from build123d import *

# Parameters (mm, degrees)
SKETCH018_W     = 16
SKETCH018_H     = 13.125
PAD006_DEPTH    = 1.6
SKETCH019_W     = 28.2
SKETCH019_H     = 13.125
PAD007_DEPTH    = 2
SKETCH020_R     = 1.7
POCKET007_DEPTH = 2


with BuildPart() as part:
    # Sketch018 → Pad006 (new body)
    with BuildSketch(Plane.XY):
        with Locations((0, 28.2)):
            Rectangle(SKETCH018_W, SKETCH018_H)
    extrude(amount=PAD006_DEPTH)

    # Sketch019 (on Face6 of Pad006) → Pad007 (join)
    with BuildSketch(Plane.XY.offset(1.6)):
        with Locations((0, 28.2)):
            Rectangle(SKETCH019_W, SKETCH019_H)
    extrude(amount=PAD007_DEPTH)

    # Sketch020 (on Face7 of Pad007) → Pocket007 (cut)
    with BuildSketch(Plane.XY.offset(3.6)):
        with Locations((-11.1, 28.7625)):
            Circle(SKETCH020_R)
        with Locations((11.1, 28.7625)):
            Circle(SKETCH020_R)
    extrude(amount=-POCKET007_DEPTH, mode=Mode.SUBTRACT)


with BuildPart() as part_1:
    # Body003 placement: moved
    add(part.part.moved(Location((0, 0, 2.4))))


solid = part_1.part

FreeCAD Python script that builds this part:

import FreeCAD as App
import Part
import Sketcher

V = App.Vector
Q = App.Units.Quantity

doc = App.newDocument("Part")
body = doc.addObject("PartDesign::Body", "Body")

# Sketch on XY plane
sketch1 = doc.addObject("Sketcher::SketchObject", "Sketch")
body.addObject(sketch1)
sketch1.AttachmentSupport = (doc.XY_Plane, [""])
sketch1.MapMode = "FlatFace"
sketch1.addGeometry([
    Part.LineSegment(V(-8, 35, 0), V(-8, 22, 0)),
    Part.LineSegment(V(-8, 22, 0), V(8, 22, 0)),
    Part.LineSegment(V(8, 22, 0), V(8, 35, 0)),
    Part.LineSegment(V(8, 35, 0), V(-8, 35, 0)),
], False)
sketch1.addConstraint([
    Sketcher.Constraint("Coincident", 0, 2, 1, 1),
    Sketcher.Constraint("Coincident", 1, 2, 2, 1),
    Sketcher.Constraint("Coincident", 2, 2, 3, 1),
    Sketcher.Constraint("Coincident", 3, 2, 0, 1),
    Sketcher.Constraint("Vertical", 0),
    Sketcher.Constraint("Horizontal", 1),
    Sketcher.Constraint("Vertical", 2),
    Sketcher.Constraint("Horizontal", 3),
    Sketcher.Constraint("DistanceX", 1, 1, 1, 2, Q("16 mm")),
    Sketcher.Constraint("DistanceX", 0, 2, -1, 1, Q("8 mm")),
    Sketcher.Constraint("DistanceY", 0, 2, 0, 1, Q("13.125 mm")),
    Sketcher.Constraint("DistanceY", -1, 1, 0, 2, Q("21.6375 mm")),
])
pad1 = doc.addObject("PartDesign::Pad", "Pad")
body.addObject(pad1)
pad1.Profile = sketch1
pad1.Length = 1.6

# Sketch on XY plane
sketch2 = doc.addObject("Sketcher::SketchObject", "Sketch001")
body.addObject(sketch2)
sketch2.AttachmentSupport = (doc.XY_Plane, [""])
sketch2.MapMode = "FlatFace"
sketch2.AttachmentOffset = App.Placement(V(0, 0, 1.6), App.Rotation())
sketch2.addGeometry([
    Part.LineSegment(V(-14, 35, 0), V(-14, 22, 0)),
    Part.LineSegment(V(-14, 22, 0), V(14, 22, 0)),
    Part.LineSegment(V(14, 22, 0), V(14, 35, 0)),
    Part.LineSegment(V(14, 35, 0), V(-14, 35, 0)),
], False)
sketch2.addConstraint([
    Sketcher.Constraint("Coincident", 0, 2, 1, 1),
    Sketcher.Constraint("Coincident", 1, 2, 2, 1),
    Sketcher.Constraint("Coincident", 2, 2, 3, 1),
    Sketcher.Constraint("Coincident", 3, 2, 0, 1),
    Sketcher.Constraint("Vertical", 0),
    Sketcher.Constraint("Horizontal", 1),
    Sketcher.Constraint("Vertical", 2),
    Sketcher.Constraint("Horizontal", 3),
    Sketcher.Constraint("DistanceX", 1, 1, 1, 2, Q("28.2 mm")),
    Sketcher.Constraint("DistanceX", 0, 2, -1, 1, Q("14.1 mm")),
    Sketcher.Constraint("DistanceY", 0, 2, 0, 1, Q("13.125 mm")),
    Sketcher.Constraint("DistanceY", -1, 1, 0, 2, Q("21.6375 mm")),
])
pad2 = doc.addObject("PartDesign::Pad", "Pad001")
body.addObject(pad2)
pad2.Profile = sketch2
pad2.Length = 2

# Sketch on XY plane
sketch3 = doc.addObject("Sketcher::SketchObject", "Sketch002")
body.addObject(sketch3)
sketch3.AttachmentSupport = (doc.XY_Plane, [""])
sketch3.MapMode = "FlatFace"
sketch3.AttachmentOffset = App.Placement(V(0, 0, 3.6), App.Rotation())
sketch3.addGeometry([
    Part.Circle(V(-11.1, 28.8, 0), V(0, 0, 1), 1.7),
    Part.Circle(V(11.1, 28.8, 0), V(0, 0, 1), 1.7),
], False)
sketch3.addConstraint([
    Sketcher.Constraint("Equal", 0, 1),
    Sketcher.Constraint("Symmetric", 0, 3, 1, 3, -2),
    Sketcher.Constraint("Diameter", 0, Q("3.4 mm")),
    Sketcher.Constraint("DistanceX", 0, 3, -1, 1, Q("11.1 mm")),
    Sketcher.Constraint("DistanceY", -1, 1, 0, 3, Q("28.7625 mm")),
])
pocket1 = doc.addObject("PartDesign::Pocket", "Pocket")
body.addObject(pocket1)
pocket1.Profile = sketch3
pocket1.Length = 2
body2 = doc.addObject("PartDesign::Body", "Body001")
doc.recompute()

body.Placement = App.Placement(V(0, 0, 2.4), App.Rotation(V(0, 0, 1), 0))
boolean = doc.addObject("PartDesign::Boolean", "Boolean")
body2.addObject(boolean)
boolean.Type = "Fuse"
boolean.addObjects([body])

doc.recompute()
